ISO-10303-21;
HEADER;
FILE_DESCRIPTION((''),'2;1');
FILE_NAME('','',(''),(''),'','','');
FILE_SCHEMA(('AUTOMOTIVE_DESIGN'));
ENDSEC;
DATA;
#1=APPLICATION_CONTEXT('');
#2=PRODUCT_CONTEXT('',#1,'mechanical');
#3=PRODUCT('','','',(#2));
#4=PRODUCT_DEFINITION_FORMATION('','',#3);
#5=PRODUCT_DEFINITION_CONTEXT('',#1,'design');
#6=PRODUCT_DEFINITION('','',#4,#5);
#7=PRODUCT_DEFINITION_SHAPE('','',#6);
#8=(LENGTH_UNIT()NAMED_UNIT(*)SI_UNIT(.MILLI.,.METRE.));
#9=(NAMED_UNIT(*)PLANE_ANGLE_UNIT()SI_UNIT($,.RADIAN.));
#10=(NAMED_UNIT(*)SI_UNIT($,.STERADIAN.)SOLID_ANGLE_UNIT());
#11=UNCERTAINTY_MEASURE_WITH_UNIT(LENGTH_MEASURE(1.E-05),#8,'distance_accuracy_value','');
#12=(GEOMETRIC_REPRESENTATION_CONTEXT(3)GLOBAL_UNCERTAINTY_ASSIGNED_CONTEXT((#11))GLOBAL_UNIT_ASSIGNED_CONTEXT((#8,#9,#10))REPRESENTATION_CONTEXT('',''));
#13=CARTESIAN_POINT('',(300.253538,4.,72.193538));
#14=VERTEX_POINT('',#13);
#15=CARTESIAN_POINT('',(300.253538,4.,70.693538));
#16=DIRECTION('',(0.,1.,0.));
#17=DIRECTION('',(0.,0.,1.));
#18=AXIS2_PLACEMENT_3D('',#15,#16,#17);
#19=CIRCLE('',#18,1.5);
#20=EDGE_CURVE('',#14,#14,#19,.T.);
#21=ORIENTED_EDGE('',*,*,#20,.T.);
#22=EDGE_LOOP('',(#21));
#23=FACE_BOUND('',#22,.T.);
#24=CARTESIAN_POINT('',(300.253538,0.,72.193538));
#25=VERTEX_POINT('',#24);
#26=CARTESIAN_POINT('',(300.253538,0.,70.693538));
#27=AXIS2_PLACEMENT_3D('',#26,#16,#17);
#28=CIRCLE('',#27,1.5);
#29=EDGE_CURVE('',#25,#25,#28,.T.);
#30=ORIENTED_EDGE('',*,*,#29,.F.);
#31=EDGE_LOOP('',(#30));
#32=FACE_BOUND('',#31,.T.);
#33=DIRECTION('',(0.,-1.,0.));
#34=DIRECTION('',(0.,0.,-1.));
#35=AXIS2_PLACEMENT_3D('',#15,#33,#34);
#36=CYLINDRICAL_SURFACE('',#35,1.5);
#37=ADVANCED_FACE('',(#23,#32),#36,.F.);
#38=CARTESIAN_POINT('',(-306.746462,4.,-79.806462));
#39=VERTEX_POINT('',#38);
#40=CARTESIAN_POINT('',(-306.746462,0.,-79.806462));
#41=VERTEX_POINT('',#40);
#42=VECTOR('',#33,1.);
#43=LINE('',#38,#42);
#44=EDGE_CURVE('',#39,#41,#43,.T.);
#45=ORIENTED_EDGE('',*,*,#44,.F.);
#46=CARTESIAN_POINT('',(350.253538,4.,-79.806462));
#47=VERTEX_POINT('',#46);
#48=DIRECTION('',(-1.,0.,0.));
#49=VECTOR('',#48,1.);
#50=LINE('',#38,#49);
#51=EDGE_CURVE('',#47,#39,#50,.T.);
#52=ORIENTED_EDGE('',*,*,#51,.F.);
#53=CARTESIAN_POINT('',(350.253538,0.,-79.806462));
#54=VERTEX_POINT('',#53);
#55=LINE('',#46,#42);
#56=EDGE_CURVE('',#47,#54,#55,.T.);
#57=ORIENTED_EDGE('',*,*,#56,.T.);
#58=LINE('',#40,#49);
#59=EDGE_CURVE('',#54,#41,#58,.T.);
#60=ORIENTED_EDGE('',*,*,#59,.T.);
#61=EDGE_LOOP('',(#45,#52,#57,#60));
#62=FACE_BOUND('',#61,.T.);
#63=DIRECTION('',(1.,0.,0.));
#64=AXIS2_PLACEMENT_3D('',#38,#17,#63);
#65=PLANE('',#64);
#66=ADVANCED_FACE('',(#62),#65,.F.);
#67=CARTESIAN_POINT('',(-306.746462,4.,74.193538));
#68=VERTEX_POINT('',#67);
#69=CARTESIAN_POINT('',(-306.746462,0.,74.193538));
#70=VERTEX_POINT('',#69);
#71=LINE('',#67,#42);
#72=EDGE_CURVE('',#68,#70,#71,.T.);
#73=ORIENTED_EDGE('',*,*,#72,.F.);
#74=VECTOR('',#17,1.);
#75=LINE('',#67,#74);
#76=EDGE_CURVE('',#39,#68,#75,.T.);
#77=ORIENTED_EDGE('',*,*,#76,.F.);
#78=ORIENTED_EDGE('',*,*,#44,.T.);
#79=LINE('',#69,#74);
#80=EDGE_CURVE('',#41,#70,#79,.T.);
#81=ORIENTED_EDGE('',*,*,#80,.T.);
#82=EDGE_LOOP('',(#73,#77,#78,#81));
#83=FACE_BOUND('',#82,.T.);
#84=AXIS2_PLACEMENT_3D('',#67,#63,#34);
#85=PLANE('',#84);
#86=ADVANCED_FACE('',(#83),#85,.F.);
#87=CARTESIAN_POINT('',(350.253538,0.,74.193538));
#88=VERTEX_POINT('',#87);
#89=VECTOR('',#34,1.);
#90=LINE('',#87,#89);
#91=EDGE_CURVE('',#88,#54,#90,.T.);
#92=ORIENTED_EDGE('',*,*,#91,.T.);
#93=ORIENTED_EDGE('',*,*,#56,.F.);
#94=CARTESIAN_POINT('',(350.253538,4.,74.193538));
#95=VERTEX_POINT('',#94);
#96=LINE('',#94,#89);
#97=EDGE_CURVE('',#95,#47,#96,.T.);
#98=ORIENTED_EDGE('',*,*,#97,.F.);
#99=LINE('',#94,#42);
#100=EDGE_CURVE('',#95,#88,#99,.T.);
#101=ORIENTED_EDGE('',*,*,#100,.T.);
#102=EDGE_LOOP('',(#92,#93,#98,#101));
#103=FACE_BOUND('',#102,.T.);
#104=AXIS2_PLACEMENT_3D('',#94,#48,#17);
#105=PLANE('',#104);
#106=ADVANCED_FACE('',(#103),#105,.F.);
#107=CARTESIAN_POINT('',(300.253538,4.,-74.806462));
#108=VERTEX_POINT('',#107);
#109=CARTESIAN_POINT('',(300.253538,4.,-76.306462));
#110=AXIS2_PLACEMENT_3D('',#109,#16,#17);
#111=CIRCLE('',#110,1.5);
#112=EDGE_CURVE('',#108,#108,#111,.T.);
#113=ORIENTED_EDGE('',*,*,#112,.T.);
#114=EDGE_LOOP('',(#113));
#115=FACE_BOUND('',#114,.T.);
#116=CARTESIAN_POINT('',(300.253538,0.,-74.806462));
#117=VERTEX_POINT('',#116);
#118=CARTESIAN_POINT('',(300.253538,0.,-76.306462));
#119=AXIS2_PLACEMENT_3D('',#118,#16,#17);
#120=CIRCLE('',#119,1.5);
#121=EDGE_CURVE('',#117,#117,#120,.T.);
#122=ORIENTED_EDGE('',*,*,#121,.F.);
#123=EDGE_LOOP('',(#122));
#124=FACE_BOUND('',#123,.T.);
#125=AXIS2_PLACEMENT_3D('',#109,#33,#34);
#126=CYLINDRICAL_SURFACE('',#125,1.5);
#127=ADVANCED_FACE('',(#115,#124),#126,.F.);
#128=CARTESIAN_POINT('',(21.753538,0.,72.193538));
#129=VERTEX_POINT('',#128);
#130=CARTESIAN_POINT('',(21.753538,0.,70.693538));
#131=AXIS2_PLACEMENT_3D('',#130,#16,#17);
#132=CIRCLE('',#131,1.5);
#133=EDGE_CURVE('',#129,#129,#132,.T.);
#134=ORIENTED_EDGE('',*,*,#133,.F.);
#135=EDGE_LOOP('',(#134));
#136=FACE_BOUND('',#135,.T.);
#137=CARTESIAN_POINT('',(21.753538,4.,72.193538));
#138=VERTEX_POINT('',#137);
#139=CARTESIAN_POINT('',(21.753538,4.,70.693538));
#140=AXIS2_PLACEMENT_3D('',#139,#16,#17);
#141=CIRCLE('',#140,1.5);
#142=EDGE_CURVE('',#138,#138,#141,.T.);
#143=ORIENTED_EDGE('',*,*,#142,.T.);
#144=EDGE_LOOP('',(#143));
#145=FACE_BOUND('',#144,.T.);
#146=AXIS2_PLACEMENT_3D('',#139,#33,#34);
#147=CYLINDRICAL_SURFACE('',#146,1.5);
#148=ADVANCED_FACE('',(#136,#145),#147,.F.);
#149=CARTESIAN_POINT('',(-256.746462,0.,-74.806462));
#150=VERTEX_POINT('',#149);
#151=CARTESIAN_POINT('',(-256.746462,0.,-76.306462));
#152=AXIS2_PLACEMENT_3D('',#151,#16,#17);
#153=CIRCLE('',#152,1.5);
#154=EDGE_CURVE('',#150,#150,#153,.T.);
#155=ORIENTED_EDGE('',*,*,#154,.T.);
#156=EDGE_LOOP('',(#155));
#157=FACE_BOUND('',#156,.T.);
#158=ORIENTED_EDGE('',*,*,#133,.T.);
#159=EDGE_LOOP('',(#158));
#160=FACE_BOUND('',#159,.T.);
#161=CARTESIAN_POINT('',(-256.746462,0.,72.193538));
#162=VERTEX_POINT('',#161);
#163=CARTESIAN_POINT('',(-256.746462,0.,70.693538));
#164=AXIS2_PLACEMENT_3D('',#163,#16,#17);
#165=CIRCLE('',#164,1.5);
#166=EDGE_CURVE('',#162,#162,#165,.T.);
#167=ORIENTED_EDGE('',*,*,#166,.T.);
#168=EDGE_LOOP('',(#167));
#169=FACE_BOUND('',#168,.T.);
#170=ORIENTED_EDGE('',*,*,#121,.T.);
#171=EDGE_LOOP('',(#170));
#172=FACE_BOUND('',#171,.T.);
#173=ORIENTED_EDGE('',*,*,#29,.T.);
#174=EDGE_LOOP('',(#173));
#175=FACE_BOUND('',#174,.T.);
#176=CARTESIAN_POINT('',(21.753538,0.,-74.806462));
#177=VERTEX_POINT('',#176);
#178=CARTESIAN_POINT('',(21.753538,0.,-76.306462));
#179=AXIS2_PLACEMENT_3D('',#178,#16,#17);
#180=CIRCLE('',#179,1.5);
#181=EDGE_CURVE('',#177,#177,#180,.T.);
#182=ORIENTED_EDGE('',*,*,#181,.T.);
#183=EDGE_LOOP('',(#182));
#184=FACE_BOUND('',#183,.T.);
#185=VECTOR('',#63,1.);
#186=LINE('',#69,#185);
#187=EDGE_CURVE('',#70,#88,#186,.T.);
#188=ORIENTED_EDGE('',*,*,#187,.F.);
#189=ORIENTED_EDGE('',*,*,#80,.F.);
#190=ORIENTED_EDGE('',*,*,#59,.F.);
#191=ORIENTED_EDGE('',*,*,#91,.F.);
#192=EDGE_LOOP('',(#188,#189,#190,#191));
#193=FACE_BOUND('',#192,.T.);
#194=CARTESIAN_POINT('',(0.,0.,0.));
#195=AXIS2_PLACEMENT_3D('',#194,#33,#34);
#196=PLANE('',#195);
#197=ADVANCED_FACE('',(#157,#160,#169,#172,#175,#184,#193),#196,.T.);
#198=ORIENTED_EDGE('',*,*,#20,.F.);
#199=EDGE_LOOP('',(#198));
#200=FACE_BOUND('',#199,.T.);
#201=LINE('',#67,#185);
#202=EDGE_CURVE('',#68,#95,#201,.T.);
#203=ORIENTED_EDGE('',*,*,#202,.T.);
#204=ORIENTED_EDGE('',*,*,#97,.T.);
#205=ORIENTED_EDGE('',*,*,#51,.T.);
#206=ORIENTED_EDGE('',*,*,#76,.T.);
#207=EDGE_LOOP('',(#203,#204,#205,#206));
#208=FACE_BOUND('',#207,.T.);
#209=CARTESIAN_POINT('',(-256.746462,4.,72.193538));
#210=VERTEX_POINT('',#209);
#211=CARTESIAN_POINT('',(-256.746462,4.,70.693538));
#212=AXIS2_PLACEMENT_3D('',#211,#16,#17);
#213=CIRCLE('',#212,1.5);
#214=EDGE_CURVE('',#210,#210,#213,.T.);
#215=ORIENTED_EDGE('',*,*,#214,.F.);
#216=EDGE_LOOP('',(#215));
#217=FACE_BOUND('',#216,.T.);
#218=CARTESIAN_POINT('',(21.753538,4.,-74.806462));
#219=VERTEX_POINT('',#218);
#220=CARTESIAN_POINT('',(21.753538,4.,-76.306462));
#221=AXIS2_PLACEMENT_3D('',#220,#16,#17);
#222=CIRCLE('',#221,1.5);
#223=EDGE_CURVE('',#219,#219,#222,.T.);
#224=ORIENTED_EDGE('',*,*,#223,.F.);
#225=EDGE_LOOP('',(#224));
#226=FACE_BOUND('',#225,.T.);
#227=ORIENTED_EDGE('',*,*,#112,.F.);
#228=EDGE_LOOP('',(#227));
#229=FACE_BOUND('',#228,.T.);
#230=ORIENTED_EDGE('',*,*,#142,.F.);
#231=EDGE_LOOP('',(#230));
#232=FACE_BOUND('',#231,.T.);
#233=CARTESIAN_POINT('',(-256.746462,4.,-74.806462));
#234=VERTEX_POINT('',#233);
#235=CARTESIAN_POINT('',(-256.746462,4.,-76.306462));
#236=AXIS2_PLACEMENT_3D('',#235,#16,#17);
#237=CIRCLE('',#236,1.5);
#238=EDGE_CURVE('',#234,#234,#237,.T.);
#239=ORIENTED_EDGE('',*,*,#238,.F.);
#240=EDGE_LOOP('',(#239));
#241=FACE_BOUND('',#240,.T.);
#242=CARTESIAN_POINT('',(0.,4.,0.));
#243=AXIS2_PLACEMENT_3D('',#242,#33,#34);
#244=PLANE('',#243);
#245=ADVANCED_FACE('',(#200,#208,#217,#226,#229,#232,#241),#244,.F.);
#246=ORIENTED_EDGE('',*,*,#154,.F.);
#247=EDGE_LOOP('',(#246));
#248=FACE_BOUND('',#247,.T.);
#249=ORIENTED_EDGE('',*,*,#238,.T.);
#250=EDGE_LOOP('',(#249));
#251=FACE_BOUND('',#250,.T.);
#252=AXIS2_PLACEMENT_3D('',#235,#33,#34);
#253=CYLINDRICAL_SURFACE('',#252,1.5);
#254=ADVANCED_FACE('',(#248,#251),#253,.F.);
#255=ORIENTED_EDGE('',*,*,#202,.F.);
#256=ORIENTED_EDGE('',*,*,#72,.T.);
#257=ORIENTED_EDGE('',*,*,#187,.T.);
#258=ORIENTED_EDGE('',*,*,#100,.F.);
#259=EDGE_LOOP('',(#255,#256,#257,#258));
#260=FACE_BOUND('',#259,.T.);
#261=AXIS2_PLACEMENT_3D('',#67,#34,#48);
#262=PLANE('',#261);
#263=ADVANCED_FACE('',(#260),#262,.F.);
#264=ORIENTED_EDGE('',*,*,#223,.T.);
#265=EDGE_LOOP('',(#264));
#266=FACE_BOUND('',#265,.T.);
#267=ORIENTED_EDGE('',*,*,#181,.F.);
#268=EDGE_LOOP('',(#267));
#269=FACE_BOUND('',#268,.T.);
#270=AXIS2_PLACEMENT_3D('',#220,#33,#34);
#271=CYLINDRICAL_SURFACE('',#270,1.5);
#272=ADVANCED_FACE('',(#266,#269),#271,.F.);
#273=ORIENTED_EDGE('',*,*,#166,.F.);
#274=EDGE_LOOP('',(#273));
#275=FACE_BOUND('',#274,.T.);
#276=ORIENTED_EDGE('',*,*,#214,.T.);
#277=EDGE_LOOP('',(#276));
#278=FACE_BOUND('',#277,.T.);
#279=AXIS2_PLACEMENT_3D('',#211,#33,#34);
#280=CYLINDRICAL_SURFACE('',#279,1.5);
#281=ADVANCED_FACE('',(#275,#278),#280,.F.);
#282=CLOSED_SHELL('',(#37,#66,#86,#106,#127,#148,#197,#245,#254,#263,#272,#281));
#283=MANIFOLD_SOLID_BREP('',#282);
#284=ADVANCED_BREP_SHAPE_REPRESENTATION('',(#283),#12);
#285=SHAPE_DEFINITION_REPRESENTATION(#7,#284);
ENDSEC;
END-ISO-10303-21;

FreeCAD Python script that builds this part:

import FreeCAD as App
import Part
import Sketcher

V = App.Vector

doc = App.newDocument("Part")
body = doc.addObject("PartDesign::Body", "Body")

# Sketch on XZ plane
sketch1 = body.newObject("Sketcher::SketchObject", "Sketch")
sketch1.AttachmentSupport = (doc.getObject("XZ_Plane"), [""])
sketch1.MapMode = "FlatFace"
sketch1.addGeometry([
    Part.LineSegment(V(-306.7, -79.8, 0), V(-306.7, 74.2, 0)),  # 0
    Part.LineSegment(V(-306.7, 74.2, 0), V(350.3, 74.2, 0)),  # 1
    Part.LineSegment(V(350.3, 74.2, 0), V(350.3, -79.8, 0)),  # 2
    Part.LineSegment(V(350.3, -79.8, 0), V(-306.7, -79.8, 0)),  # 3
    Part.Circle(V(-256.7, 70.7, 0), V(0, 0, 1), 1.5),  # 4
    Part.Circle(V(21.8, 70.7, 0), V(0, 0, 1), 1.5),  # 5
    Part.Circle(V(300.3, 70.7, 0), V(0, 0, 1), 1.5),  # 6
    Part.Circle(V(-256.7, -76.3, 0), V(0, 0, 1), 1.5),  # 7
    Part.Circle(V(21.8, -76.3, 0), V(0, 0, 1), 1.5),  # 8
    Part.Circle(V(300.3, -76.3, 0), V(0, 0, 1), 1.5),  # 9
], False)
sketch1.addConstraint([
    Sketcher.Constraint("Coincident", 0, 2, 1, 1),
    Sketcher.Constraint("Coincident", 1, 2, 2, 1),
    Sketcher.Constraint("Coincident", 2, 2, 3, 1),
    Sketcher.Constraint("Coincident", 3, 2, 0, 1),
    Sketcher.Constraint("Vertical", 0),
    Sketcher.Constraint("Horizontal", 1),
    Sketcher.Constraint("Vertical", 2),
    Sketcher.Constraint("Horizontal", 3),
    Sketcher.Constraint("Equal", 4, 5),
    Sketcher.Constraint("Equal", 5, 6),
    Sketcher.Constraint("Equal", 6, 7),
    Sketcher.Constraint("Equal", 7, 8),
    Sketcher.Constraint("Equal", 8, 9),
    Sketcher.Constraint("Horizontal", 4, 3, 5, 3),
    Sketcher.Constraint("Horizontal", 5, 3, 6, 3),
    Sketcher.Constraint("Horizontal", 7, 3, 8, 3),
    Sketcher.Constraint("Horizontal", 8, 3, 9, 3),
    Sketcher.Constraint("Vertical", 4, 3, 7, 3),
    Sketcher.Constraint("Vertical", 5, 3, 8, 3),
    Sketcher.Constraint("Vertical", 6, 3, 9, 3),
    Sketcher.Constraint("Diameter", 4, 3.0),
    Sketcher.Constraint("DistanceX", 1, 1, 1, 2, 657.0),
    Sketcher.Constraint("DistanceY", 0, 1, 0, 2, 154.0),
    Sketcher.Constraint("DistanceX", 4, 3, 6, 3, 557.0),
    Sketcher.Constraint("DistanceY", 7, 3, 4, 3, 147.0),
    Sketcher.Constraint("DistanceX", 0, 2, 4, 3, 50.0),
    Sketcher.Constraint("DistanceX", 4, 3, 5, 3, 278.5),
    Sketcher.Constraint("DistanceY", 4, 3, 0, 2, 3.5),
    Sketcher.Constraint("DistanceX", 4, 3, -1, 1, 256.746462),
    Sketcher.Constraint("DistanceY", -1, 1, 4, 3, 70.693538),
])
pad1 = body.newObject("PartDesign::Pad", "Pad")
pad1.Profile = sketch1
pad1.Length = 4
pad1.Reversed = True

doc.recompute()
